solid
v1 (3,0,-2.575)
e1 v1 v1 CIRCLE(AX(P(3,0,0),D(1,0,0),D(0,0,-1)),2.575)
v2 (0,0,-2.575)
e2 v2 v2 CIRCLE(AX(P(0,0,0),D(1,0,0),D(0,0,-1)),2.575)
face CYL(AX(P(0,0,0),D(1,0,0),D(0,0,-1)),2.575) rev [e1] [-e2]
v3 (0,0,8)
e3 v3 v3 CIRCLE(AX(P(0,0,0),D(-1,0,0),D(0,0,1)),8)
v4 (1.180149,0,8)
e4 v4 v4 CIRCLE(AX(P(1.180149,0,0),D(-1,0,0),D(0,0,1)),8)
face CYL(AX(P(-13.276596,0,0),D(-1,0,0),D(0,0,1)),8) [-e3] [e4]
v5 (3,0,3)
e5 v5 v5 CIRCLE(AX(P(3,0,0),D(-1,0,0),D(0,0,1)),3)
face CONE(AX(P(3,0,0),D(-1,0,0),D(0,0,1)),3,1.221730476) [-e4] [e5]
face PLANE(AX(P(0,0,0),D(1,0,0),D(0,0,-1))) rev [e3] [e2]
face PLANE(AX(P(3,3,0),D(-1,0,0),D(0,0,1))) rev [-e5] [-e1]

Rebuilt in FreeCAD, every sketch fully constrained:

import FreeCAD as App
import Part
import Sketcher
Q = App.Units.Quantity

doc = App.newDocument("Part")
body = doc.addObject("PartDesign::Body", "Body")

# Sketch on XY plane
sketch1 = body.newObject("Sketcher::SketchObject", "Sketch")
sketch1.AttachmentSupport = (doc.getObject("XY_Plane"), [""])
sketch1.MapMode = "FlatFace"
sketch1.addGeometry(Part.LineSegment(App.Vector(0, 8, 0), App.Vector(0, 0, 0)), False)
sketch1.addGeometry(Part.LineSegment(App.Vector(0, 0, 0), App.Vector(3, 0, 0)), False)
sketch1.addGeometry(Part.LineSegment(App.Vector(3, 0, 0), App.Vector(3, 3, 0)), False)
sketch1.addGeometry(Part.LineSegment(App.Vector(3, 3, 0), App.Vector(1.2, 8, 0)), False)
sketch1.addGeometry(Part.LineSegment(App.Vector(1.2, 8, 0), App.Vector(0, 8, 0)), False)
sketch1.addConstraint(Sketcher.Constraint("Coincident", 0, 2, 1, 1))
sketch1.addConstraint(Sketcher.Constraint("Coincident", 1, 2, 2, 1))
sketch1.addConstraint(Sketcher.Constraint("Coincident", 2, 2, 3, 1))
sketch1.addConstraint(Sketcher.Constraint("Coincident", 3, 2, 4, 1))
sketch1.addConstraint(Sketcher.Constraint("Coincident", 4, 2, 0, 1))
sketch1.addConstraint(Sketcher.Constraint("Vertical", 0))
sketch1.addConstraint(Sketcher.Constraint("Horizontal", 1))
sketch1.addConstraint(Sketcher.Constraint("Vertical", 2))
sketch1.addConstraint(Sketcher.Constraint("Horizontal", 4))
sketch1.addConstraint(Sketcher.Constraint("Coincident", 0, 2, -1, 1))
sketch1.addConstraint(Sketcher.Constraint("Equal", 1, 2))
sketch1.addConstraint(Sketcher.Constraint("DistanceX", 1, 1, 1, 2, 3.0))
sketch1.addConstraint(Sketcher.Constraint("DistanceY", 0, 2, 0, 1, 8.0))
sketch1.addConstraint(Sketcher.Constraint("Angle", 3, Q("110 deg")))
revolution = body.newObject("PartDesign::Revolution", "Revolution")
revolution.Profile = sketch1
revolution.ReferenceAxis = (sketch1, ["H_Axis"])
revolution.Angle = 360

# Sketch on YZ plane
sketch2 = body.newObject("Sketcher::SketchObject", "Sketch001")
sketch2.AttachmentSupport = (doc.getObject("YZ_Plane"), [""])
sketch2.MapMode = "FlatFace"
sketch2.AttachmentOffset = App.Placement(App.Vector(0, 0, 3), App.Rotation())
sketch2.addGeometry(Part.Circle(App.Vector(0, 0, 0), App.Vector(0, 0, 1), 2.6), False)
sketch2.addConstraint(Sketcher.Constraint("Coincident", 0, 3, -1, 1))
sketch2.addConstraint(Sketcher.Constraint("Diameter", 0, 5.15))
pocket1 = body.newObject("PartDesign::Pocket", "Pocket")
pocket1.Profile = sketch2
pocket1.Type = "ThroughAll"

doc.recompute()
